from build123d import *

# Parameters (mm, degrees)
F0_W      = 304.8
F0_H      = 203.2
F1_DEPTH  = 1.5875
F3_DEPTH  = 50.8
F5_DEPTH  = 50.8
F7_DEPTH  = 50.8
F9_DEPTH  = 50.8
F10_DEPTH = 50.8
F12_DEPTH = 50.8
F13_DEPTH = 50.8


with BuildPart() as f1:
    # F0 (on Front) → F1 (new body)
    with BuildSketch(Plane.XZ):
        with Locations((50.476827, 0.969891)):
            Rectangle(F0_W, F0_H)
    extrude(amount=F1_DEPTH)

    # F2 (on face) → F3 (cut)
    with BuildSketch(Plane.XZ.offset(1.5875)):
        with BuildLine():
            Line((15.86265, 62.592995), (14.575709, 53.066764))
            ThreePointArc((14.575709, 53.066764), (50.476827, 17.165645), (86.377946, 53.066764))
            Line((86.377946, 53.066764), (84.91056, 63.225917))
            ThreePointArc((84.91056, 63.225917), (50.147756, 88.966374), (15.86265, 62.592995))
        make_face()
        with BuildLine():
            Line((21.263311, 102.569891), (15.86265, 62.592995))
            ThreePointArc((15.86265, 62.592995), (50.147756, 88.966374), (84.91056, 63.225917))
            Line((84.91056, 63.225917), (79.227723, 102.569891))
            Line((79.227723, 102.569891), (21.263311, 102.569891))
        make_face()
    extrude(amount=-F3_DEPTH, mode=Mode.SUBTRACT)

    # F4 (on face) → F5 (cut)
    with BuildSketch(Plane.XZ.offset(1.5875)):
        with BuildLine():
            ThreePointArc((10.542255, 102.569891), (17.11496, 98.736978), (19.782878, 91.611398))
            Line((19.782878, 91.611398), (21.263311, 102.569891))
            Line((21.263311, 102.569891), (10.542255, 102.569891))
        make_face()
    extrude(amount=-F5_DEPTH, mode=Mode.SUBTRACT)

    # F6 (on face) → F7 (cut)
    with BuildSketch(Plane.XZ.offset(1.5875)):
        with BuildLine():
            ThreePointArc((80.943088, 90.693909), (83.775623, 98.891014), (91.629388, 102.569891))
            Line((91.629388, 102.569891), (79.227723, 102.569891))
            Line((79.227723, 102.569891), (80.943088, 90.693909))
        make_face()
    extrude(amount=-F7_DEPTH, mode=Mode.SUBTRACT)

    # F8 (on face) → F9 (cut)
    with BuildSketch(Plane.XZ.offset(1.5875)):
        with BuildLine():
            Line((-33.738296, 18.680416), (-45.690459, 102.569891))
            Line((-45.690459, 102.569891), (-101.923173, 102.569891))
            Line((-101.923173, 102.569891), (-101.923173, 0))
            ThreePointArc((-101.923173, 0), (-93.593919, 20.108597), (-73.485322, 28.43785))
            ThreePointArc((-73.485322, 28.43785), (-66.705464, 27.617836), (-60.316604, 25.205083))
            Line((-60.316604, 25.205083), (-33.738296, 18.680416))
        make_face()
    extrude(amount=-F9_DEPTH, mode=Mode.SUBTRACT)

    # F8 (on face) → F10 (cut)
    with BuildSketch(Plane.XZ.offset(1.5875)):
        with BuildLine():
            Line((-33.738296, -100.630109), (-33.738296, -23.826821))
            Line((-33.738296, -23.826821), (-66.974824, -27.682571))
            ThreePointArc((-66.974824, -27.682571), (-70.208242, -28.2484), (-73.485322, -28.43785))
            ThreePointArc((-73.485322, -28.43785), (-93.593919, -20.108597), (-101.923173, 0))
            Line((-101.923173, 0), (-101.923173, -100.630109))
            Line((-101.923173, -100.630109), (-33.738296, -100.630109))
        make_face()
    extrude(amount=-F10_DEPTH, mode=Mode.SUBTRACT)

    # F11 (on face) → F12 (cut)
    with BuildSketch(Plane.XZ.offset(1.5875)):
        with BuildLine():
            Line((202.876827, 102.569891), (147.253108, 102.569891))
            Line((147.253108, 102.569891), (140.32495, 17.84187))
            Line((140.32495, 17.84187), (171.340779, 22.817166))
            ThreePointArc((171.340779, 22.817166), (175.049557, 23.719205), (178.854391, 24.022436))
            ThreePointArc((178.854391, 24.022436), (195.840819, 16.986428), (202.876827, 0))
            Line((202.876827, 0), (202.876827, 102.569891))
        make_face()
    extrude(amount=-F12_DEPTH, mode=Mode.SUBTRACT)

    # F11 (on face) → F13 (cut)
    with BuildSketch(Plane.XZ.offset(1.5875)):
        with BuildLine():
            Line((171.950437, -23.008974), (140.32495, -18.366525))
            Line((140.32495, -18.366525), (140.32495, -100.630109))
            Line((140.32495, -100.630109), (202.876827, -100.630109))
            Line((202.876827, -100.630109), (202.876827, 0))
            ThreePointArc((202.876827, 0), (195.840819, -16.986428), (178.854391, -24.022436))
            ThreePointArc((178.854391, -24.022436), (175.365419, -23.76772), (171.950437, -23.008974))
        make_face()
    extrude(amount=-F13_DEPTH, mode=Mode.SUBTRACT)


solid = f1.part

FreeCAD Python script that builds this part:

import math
import FreeCAD as App
import Part
import Sketcher
Q = App.Units.Quantity

doc = App.newDocument("Part")
params = doc.addObject("Spreadsheet::Sheet", "Params")
for row, (alias, value) in enumerate([
    ("sketch1_width", "12 in"),
    ("sketch1_height", "8 in"),
    ("pad1_length", "0.0625 in"),
    ("pocket1_length", "2 in"),
    ("pocket2_length", "2 in"),
    ("pocket3_length", "2 in"),
    ("pocket4_length", "2 in"),
    ("pocket5_length", "2 in"),
    ("pocket6_length", "2 in"),
    ("pocket7_length", "2 in"),
], start=1):
    params.set(f"A{row}", alias)
    params.set(f"B{row}", "=" + value)
    params.setAlias(f"B{row}", alias)

body = doc.addObject("PartDesign::Body", "Body")

# Sketch on XZ plane
sketch1 = body.newObject("Sketcher::SketchObject", "Sketch")
sketch1.AttachmentSupport = (doc.getObject("XZ_Plane"), [""])
sketch1.MapMode = "FlatFace"
sketch1.addGeometry(Part.LineSegment(App.Vector(-102, 103, 0), App.Vector(-102, -101, 0)), False)
sketch1.addGeometry(Part.LineSegment(App.Vector(-102, -101, 0), App.Vector(203, -101, 0)), False)
sketch1.addGeometry(Part.LineSegment(App.Vector(203, -101, 0), App.Vector(203, 103, 0)), False)
sketch1.addGeometry(Part.LineSegment(App.Vector(203, 103, 0), App.Vector(-102, 103, 0)), False)
sketch1.addConstraint(Sketcher.Constraint("Coincident", 0, 2, 1, 1))
sketch1.addConstraint(Sketcher.Constraint("Coincident", 1, 2, 2, 1))
sketch1.addConstraint(Sketcher.Constraint("Coincident", 2, 2, 3, 1))
sketch1.addConstraint(Sketcher.Constraint("Coincident", 3, 2, 0, 1))
sketch1.addConstraint(Sketcher.Constraint("Vertical", 0))
sketch1.addConstraint(Sketcher.Constraint("Horizontal", 1))
sketch1.addConstraint(Sketcher.Constraint("Vertical", 2))
sketch1.addConstraint(Sketcher.Constraint("Horizontal", 3))
sketch1.addConstraint(Sketcher.Constraint("DistanceX", 1, 1, 1, 2, Q("12 in")))
sketch1.addConstraint(Sketcher.Constraint("DistanceY", 0, 2, 0, 1, Q("8 in")))
sketch1.addConstraint(Sketcher.Constraint("DistanceY", 0, 2, -1, 1, 100.630109))
sketch1.addConstraint(Sketcher.Constraint("DistanceX", 0, 2, -1, 1, 101.923173))
sketch1.setExpression("Constraints[8]", "Params.sketch1_width")
sketch1.setExpression("Constraints[9]", "Params.sketch1_height")
pad1 = body.newObject("PartDesign::Pad", "Pad")
pad1.Profile = sketch1
pad1.setExpression("Length", "Params.pad1_length")

# Sketch on XZ plane
sketch2 = body.newObject("Sketcher::SketchObject", "Sketch001")
sketch2.AttachmentSupport = (doc.getObject("XZ_Plane"), [""])
sketch2.MapMode = "FlatFace"
sketch2.AttachmentOffset = App.Placement(App.Vector(0, 0, 0.0625 * 25.4), App.Rotation())
sketch2.addGeometry(Part.LineSegment(App.Vector(16, 63, 0), App.Vector(15, 53, 0)), False)
sketch2.addGeometry(Part.ArcOfCircle(Part.Circle(App.Vector(50, 53, 0), App.Vector(0, 0, 1), 36), math.radians(180), math.radians(360)), False)
sketch2.addGeometry(Part.LineSegment(App.Vector(86, 53, 0), App.Vector(85, 63, 0)), False)
sketch2.addGeometry(Part.LineSegment(App.Vector(85, 63, 0), App.Vector(79, 103, 0)), False)
sketch2.addGeometry(Part.LineSegment(App.Vector(79, 103, 0), App.Vector(21, 103, 0)), False)
sketch2.addGeometry(Part.LineSegment(App.Vector(21, 103, 0), App.Vector(16, 63, 0)), False)
sketch2.addConstraint(Sketcher.Constraint("Coincident", 0, 2, 1, 1))
sketch2.addConstraint(Sketcher.Constraint("Coincident", 1, 2, 2, 1))
sketch2.addConstraint(Sketcher.Constraint("Coincident", 2, 2, 3, 1))
sketch2.addConstraint(Sketcher.Constraint("Coincident", 3, 2, 4, 1))
sketch2.addConstraint(Sketcher.Constraint("Coincident", 4, 2, 5, 1))
sketch2.addConstraint(Sketcher.Constraint("Coincident", 5, 2, 0, 1))
sketch2.addConstraint(Sketcher.Constraint("Horizontal", 4))
sketch2.addConstraint(Sketcher.Constraint("Parallel", 2, 3))
sketch2.addConstraint(Sketcher.Constraint("Parallel", 0, 5))
sketch2.addConstraint(Sketcher.Constraint("Horizontal", 1, 3, 0, 2))
sketch2.addConstraint(Sketcher.Constraint("Horizontal", 0, 2, 1, 2))
sketch2.addConstraint(Sketcher.Constraint("Radius", 1, 35.901119))
sketch2.addConstraint(Sketcher.Constraint("DistanceX", 4, 2, 4, 1, 57.964412))
sketch2.addConstraint(Sketcher.Constraint("Distance", 2, 10.26458))
sketch2.addConstraint(Sketcher.Constraint("Distance", 3, 39.752269))
sketch2.addConstraint(Sketcher.Constraint("DistanceX", -1, 1, 0, 2, 14.575709))
sketch2.addConstraint(Sketcher.Constraint("DistanceX", -1, 1, 2, 2, 84.91056))
sketch2.addConstraint(Sketcher.Constraint("DistanceY", -1, 1, 3, 2, 102.569891))
sketch2.addConstraint(Sketcher.Constraint("DistanceX", -1, 1, 5, 2, 15.86265))
pocket1 = body.newObject("PartDesign::Pocket", "Pocket")
pocket1.Profile = sketch2
pocket1.setExpression("Length", "Params.pocket1_length")

# Sketch on XZ plane
sketch3 = body.newObject("Sketcher::SketchObject", "Sketch002")
sketch3.AttachmentSupport = (doc.getObject("XZ_Plane"), [""])
sketch3.MapMode = "FlatFace"
sketch3.AttachmentOffset = App.Placement(App.Vector(0, 0, 0.0625 * 25.4), App.Rotation())
sketch3.addGeometry(Part.ArcOfCircle(Part.Circle(App.Vector(8, 91, 0), App.Vector(0, 0, 1), 11), math.radians(1), math.radians(79)), False)
sketch3.addGeometry(Part.LineSegment(App.Vector(20, 92, 0), App.Vector(21, 103, 0)), False)
sketch3.addGeometry(Part.LineSegment(App.Vector(21, 103, 0), App.Vector(11, 103, 0)), False)
sketch3.addConstraint(Sketcher.Constraint("Coincident", 0, 1, 1, 1))
sketch3.addConstraint(Sketcher.Constraint("Coincident", 1, 2, 2, 1))
sketch3.addConstraint(Sketcher.Constraint("Coincident", 2, 2, 0, 2))
sketch3.addConstraint(Sketcher.Constraint("Horizontal", 2))
sketch3.addConstraint(Sketcher.Constraint("Radius", 0, 11.334106))
sketch3.addConstraint(Sketcher.Constraint("Distance", 1, 11.05804))
sketch3.addConstraint(Sketcher.Constraint("DistanceX", 2, 2, 2, 1, 10.721056))
sketch3.addConstraint(Sketcher.Constraint("DistanceY", -1, 1, 0, 3, 91.430532))
sketch3.addConstraint(Sketcher.Constraint("DistanceX", -1, 1, 1, 2, 21.263311))
sketch3.addConstraint(Sketcher.Constraint("DistanceY", -1, 1, 1, 2, 102.569891))
pocket2 = body.newObject("PartDesign::Pocket", "Pocket001")
pocket2.Profile = sketch3
pocket2.setExpression("Length", "Params.pocket2_length")

# Sketch on XZ plane
sketch4 = body.newObject("Sketcher::SketchObject", "Sketch003")
sketch4.AttachmentSupport = (doc.getObject("XZ_Plane"), [""])
sketch4.MapMode = "FlatFace"
sketch4.AttachmentOffset = App.Placement(App.Vector(0, 0, 0.0625 * 25.4), App.Rotation())
sketch4.addGeometry(Part.ArcOfCircle(Part.Circle(App.Vector(92, 91, 0), App.Vector(0, 0, 1), 11), math.radians(92), math.radians(184)), False)
sketch4.addGeometry(Part.LineSegment(App.Vector(92, 103, 0), App.Vector(79, 103, 0)), False)
sketch4.addGeometry(Part.LineSegment(App.Vector(79, 103, 0), App.Vector(81, 91, 0)), False)
sketch4.addConstraint(Sketcher.Constraint("Coincident", 0, 1, 1, 1))
sketch4.addConstraint(Sketcher.Constraint("Coincident", 1, 2, 2, 1))
sketch4.addConstraint(Sketcher.Constraint("Coincident", 2, 2, 0, 2))
sketch4.addConstraint(Sketcher.Constraint("Horizontal", 1))
sketch4.addConstraint(Sketcher.Constraint("Radius", 0, 11.135182))
sketch4.addConstraint(Sketcher.Constraint("DistanceX", 2, 2, 0, 1, 10.6863))
sketch4.addConstraint(Sketcher.Constraint("DistanceX", 1, 2, 1, 1, 12.401665))
sketch4.addConstraint(Sketcher.Constraint("DistanceX", -1, 1, 0, 3, 92.05306))
sketch4.addConstraint(Sketcher.Constraint("DistanceY", -1, 1, 0, 3, 91.442772))
sketch4.addConstraint(Sketcher.Constraint("DistanceX", -1, 1, 0, 1, 91.629388))
pocket3 = body.newObject("PartDesign::Pocket", "Pocket002")
pocket3.Profile = sketch4
pocket3.setExpression("Length", "Params.pocket3_length")

# Sketch on XZ plane
sketch5 = body.newObject("Sketcher::SketchObject", "Sketch004")
sketch5.AttachmentSupport = (doc.getObject("XZ_Plane"), [""])
sketch5.MapMode = "FlatFace"
sketch5.AttachmentOffset = App.Placement(App.Vector(0, 0, 0.0625 * 25.4), App.Rotation())
sketch5.addGeometry(Part.LineSegment(App.Vector(-34, 19, 0), App.Vector(-46, 103, 0)), False)
sketch5.addGeometry(Part.LineSegment(App.Vector(-46, 103, 0), App.Vector(-102, 103, 0)), False)
sketch5.addGeometry(Part.LineSegment(App.Vector(-102, 103, 0), App.Vector(-102, 0, 0)), False)
sketch5.addGeometry(Part.ArcOfCircle(Part.Circle(App.Vector(-73, 0, 0), App.Vector(0, 0, 1), 28), math.radians(90), math.radians(180)), False)
sketch5.addGeometry(Part.ArcOfCircle(Part.Circle(App.Vector(-73, 0, 0), App.Vector(0, 0, 1), 28), math.radians(62), math.radians(90)), False)
sketch5.addGeometry(Part.LineSegment(App.Vector(-60, 25, 0), App.Vector(-34, 19, 0)), False)
sketch5.addConstraint(Sketcher.Constraint("Coincident", 0, 2, 1, 1))
sketch5.addConstraint(Sketcher.Constraint("Coincident", 1, 2, 2, 1))
sketch5.addConstraint(Sketcher.Constraint("Tangent", 2, 2, 3, 2))
sketch5.addConstraint(Sketcher.Constraint("Tangent", 3, 1, 4, 2))
sketch5.addConstraint(Sketcher.Constraint("Coincident", 4, 1, 5, 1))
sketch5.addConstraint(Sketcher.Constraint("Coincident", 5, 2, 0, 1))
sketch5.addConstraint(Sketcher.Constraint("Horizontal", 1))
sketch5.addConstraint(Sketcher.Constraint("Vertical", 2))
sketch5.addConstraint(Sketcher.Constraint("PointOnObject", 3, 3, -1))
sketch5.addConstraint(Sketcher.Constraint("Radius", 4, Q("1.1196001 in")))
sketch5.addConstraint(Sketcher.Constraint("Radius", 3, 28.43785))
sketch5.addConstraint(Sketcher.Constraint("DistanceY", 2, 2, 2, 1, 102.569891))
sketch5.addConstraint(Sketcher.Constraint("Distance", 0, 84.73664))
sketch5.addConstraint(Sketcher.Constraint("DistanceX", 1, 2, 1, 1, 56.232714))
sketch5.addConstraint(Sketcher.Constraint("DistanceX", 4, 3, -1, 1, 73.485319))
sketch5.addConstraint(Sketcher.Constraint("DistanceX", 3, 1, -1, 1, 73.485322))
sketch5.addConstraint(Sketcher.Constraint("DistanceX", 3, 3, 4, 1, 13.168719))
sketch5.addConstraint(Sketcher.Constraint("DistanceX", 4, 1, 5, 2, 26.578308))
pocket4 = body.newObject("PartDesign::Pocket", "Pocket003")
pocket4.Profile = sketch5
pocket4.setExpression("Length", "Params.pocket4_length")

# Sketch on XZ plane
sketch6 = body.newObject("Sketcher::SketchObject", "Sketch005")
sketch6.AttachmentSupport = (doc.getObject("XZ_Plane"), [""])
sketch6.MapMode = "FlatFace"
sketch6.AttachmentOffset = App.Placement(App.Vector(0, 0, 0.0625 * 25.4), App.Rotation())
sketch6.addGeometry(Part.LineSegment(App.Vector(-34, -101, 0), App.Vector(-34, -24, 0)), False)
sketch6.addGeometry(Part.LineSegment(App.Vector(-34, -24, 0), App.Vector(-67, -28, 0)), False)
sketch6.addGeometry(Part.ArcOfCircle(Part.Circle(App.Vector(-73, 0, 0), App.Vector(0, 0, 1), 28), math.radians(-90), math.radians(-76.77)), False)
sketch6.addGeometry(Part.ArcOfCircle(Part.Circle(App.Vector(-73, 0, 0), App.Vector(0, 0, 1), 28), math.radians(-180), math.radians(-90)), False)
sketch6.addGeometry(Part.LineSegment(App.Vector(-102, 0, 0), App.Vector(-102, -101, 0)), False)
sketch6.addGeometry(Part.LineSegment(App.Vector(-102, -101, 0), App.Vector(-34, -101, 0)), False)
sketch6.addConstraint(Sketcher.Constraint("Coincident", 0, 2, 1, 1))
sketch6.addConstraint(Sketcher.Constraint("Coincident", 1, 2, 2, 2))
sketch6.addConstraint(Sketcher.Constraint("Tangent", 2, 1, 3, 2))
sketch6.addConstraint(Sketcher.Constraint("Tangent", 3, 1, 4, 1))
sketch6.addConstraint(Sketcher.Constraint("Coincident", 4, 2, 5, 1))
sketch6.addConstraint(Sketcher.Constraint("Coincident", 5, 2, 0, 1))
sketch6.addConstraint(Sketcher.Constraint("Vertical", 0))
sketch6.addConstraint(Sketcher.Constraint("Vertical", 4))
sketch6.addConstraint(Sketcher.Constraint("Horizontal", 5))
sketch6.addConstraint(Sketcher.Constraint("PointOnObject", 3, 3, -1))
sketch6.addConstraint(Sketcher.Constraint("Vertical", 3, 3, 2, 1))
sketch6.addConstraint(Sketcher.Constraint("Radius", 2, 28.437748))
sketch6.addConstraint(Sketcher.Constraint("Radius", 3, 28.43785))
sketch6.addConstraint(Sketcher.Constraint("DistanceY", 0, 1, 0, 2, 76.803288))
sketch6.addConstraint(Sketcher.Constraint("DistanceY", 4, 2, 4, 1, 100.630109))
sketch6.addConstraint(Sketcher.Constraint("DistanceX", 3, 3, 1, 2, 6.510499))
sketch6.addConstraint(Sketcher.Constraint("DistanceX", 5, 1, 5, 2, 68.184877))
sketch6.addConstraint(Sketcher.Constraint("DistanceX", 2, 3, -1, 1, 73.48531))
pocket5 = body.newObject("PartDesign::Pocket", "Pocket004")
pocket5.Profile = sketch6
pocket5.setExpression("Length", "Params.pocket5_length")

# Sketch on XZ plane
sketch7 = body.newObject("Sketcher::SketchObject", "Sketch006")
sketch7.AttachmentSupport = (doc.getObject("XZ_Plane"), [""])
sketch7.MapMode = "FlatFace"
sketch7.AttachmentOffset = App.Placement(App.Vector(0, 0, 0.0625 * 25.4), App.Rotation())
sketch7.addGeometry(Part.LineSegment(App.Vector(203, 103, 0), App.Vector(147, 103, 0)), False)
sketch7.addGeometry(Part.LineSegment(App.Vector(147, 103, 0), App.Vector(140, 18, 0)), False)
sketch7.addGeometry(Part.LineSegment(App.Vector(140, 18, 0), App.Vector(171, 23, 0)), False)
sketch7.addGeometry(Part.ArcOfCircle(Part.Circle(App.Vector(179, 0, 0), App.Vector(0, 0, 1), 24), math.radians(90), math.radians(108.23)), False)
sketch7.addGeometry(Part.ArcOfCircle(Part.Circle(App.Vector(179, 0, 0), App.Vector(0, 0, 1), 24), math.radians(0), math.radians(90)), False)
sketch7.addGeometry(Part.LineSegment(App.Vector(203, 0, 0), App.Vector(203, 103, 0)), False)
sketch7.addConstraint(Sketcher.Constraint("Coincident", 0, 2, 1, 1))
sketch7.addConstraint(Sketcher.Constraint("Coincident", 1, 2, 2, 1))
sketch7.addConstraint(Sketcher.Constraint("Coincident", 2, 2, 3, 2))
sketch7.addConstraint(Sketcher.Constraint("Tangent", 3, 1, 4, 2))
sketch7.addConstraint(Sketcher.Constraint("Tangent", 4, 1, 5, 1))
sketch7.addConstraint(Sketcher.Constraint("Coincident", 5, 2, 0, 1))
sketch7.addConstraint(Sketcher.Constraint("Horizontal", 0))
sketch7.addConstraint(Sketcher.Constraint("Vertical", 5))
sketch7.addConstraint(Sketcher.Constraint("PointOnObject", 4, 1, -1))
sketch7.addConstraint(Sketcher.Constraint("Radius", 3, 24.022408))
sketch7.addConstraint(Sketcher.Constraint("DistanceX", -1, 1, 2, 2, Q("6.7457 in")))
sketch7.addConstraint(Sketcher.Constraint("Radius", 4, 24.022434))
sketch7.addConstraint(Sketcher.Constraint("DistanceX", 0, 2, 0, 1, 55.623719))
sketch7.addConstraint(Sketcher.Constraint("DistanceY", 5, 1, 5, 2, 102.569891))
sketch7.addConstraint(Sketcher.Constraint("Distance", 2, 31.412342))
sketch7.addConstraint(Sketcher.Constraint("DistanceX", -1, 1, 0, 2, 147.253108))
sketch7.addConstraint(Sketcher.Constraint("DistanceX", -1, 1, 1, 2, 140.32495))
sketch7.addConstraint(Sketcher.Constraint("DistanceX", -1, 1, 3, 1, 178.854391))
pocket6 = body.newObject("PartDesign::Pocket", "Pocket005")
pocket6.Profile = sketch7
pocket6.setExpression("Length", "Params.pocket6_length")

# Sketch on XZ plane
sketch8 = body.newObject("Sketcher::SketchObject", "Sketch007")
sketch8.AttachmentSupport = (doc.getObject("XZ_Plane"), [""])
sketch8.MapMode = "FlatFace"
sketch8.AttachmentOffset = App.Placement(App.Vector(0, 0, 0.0625 * 25.4), App.Rotation())
sketch8.addGeometry(Part.LineSegment(App.Vector(172, -23, 0), App.Vector(140, -18, 0)), False)
sketch8.addGeometry(Part.LineSegment(App.Vector(140, -18, 0), App.Vector(140, -101, 0)), False)
sketch8.addGeometry(Part.LineSegment(App.Vector(140, -101, 0), App.Vector(203, -101, 0)), False)
sketch8.addGeometry(Part.LineSegment(App.Vector(203, -101, 0), App.Vector(203, 0, 0)), False)
sketch8.addGeometry(Part.ArcOfCircle(Part.Circle(App.Vector(179, 0, 0), App.Vector(0, 0, 1), 24), math.radians(-90), math.radians(0)), False)
sketch8.addGeometry(Part.ArcOfCircle(Part.Circle(App.Vector(179, 0, 0), App.Vector(0, 0, 1), 24), math.radians(-106.7), math.radians(-90)), False)
sketch8.addConstraint(Sketcher.Constraint("Coincident", 0, 2, 1, 1))
sketch8.addConstraint(Sketcher.Constraint("Coincident", 1, 2, 2, 1))
sketch8.addConstraint(Sketcher.Constraint("Coincident", 2, 2, 3, 1))
sketch8.addConstraint(Sketcher.Constraint("Tangent", 3, 2, 4, 2))
sketch8.addConstraint(Sketcher.Constraint("Tangent", 4, 1, 5, 2))
sketch8.addConstraint(Sketcher.Constraint("Coincident", 5, 1, 0, 1))
sketch8.addConstraint(Sketcher.Constraint("Vertical", 1))
sketch8.addConstraint(Sketcher.Constraint("Horizontal", 2))
sketch8.addConstraint(Sketcher.Constraint("Vertical", 3))
sketch8.addConstraint(Sketcher.Constraint("PointOnObject", 3, 2, -1))
sketch8.addConstraint(Sketcher.Constraint("Vertical", 5, 3, 4, 1))
sketch8.addConstraint(Sketcher.Constraint("Radius", 4, 24.022434))
sketch8.addConstraint(Sketcher.Constraint("Radius", 5, 24.022453))
sketch8.addConstraint(Sketcher.Constraint("DistanceY", 4, 1, 5, 1, Q("0.0399001 in")))
sketch8.addConstraint(Sketcher.Constraint("DistanceY", 3, 1, 3, 2, 100.630109))
sketch8.addConstraint(Sketcher.Constraint("DistanceX", 2, 1, 2, 2, 62.551877))
sketch8.addConstraint(Sketcher.Constraint("DistanceY", 1, 2, 1, 1, 82.263584))
sketch8.addConstraint(Sketcher.Constraint("DistanceX", -1, 1, 5, 3, 178.854391))
pocket7 = body.newObject("PartDesign::Pocket", "Pocket006")
pocket7.Profile = sketch8
pocket7.setExpression("Length", "Params.pocket7_length")

doc.recompute()
